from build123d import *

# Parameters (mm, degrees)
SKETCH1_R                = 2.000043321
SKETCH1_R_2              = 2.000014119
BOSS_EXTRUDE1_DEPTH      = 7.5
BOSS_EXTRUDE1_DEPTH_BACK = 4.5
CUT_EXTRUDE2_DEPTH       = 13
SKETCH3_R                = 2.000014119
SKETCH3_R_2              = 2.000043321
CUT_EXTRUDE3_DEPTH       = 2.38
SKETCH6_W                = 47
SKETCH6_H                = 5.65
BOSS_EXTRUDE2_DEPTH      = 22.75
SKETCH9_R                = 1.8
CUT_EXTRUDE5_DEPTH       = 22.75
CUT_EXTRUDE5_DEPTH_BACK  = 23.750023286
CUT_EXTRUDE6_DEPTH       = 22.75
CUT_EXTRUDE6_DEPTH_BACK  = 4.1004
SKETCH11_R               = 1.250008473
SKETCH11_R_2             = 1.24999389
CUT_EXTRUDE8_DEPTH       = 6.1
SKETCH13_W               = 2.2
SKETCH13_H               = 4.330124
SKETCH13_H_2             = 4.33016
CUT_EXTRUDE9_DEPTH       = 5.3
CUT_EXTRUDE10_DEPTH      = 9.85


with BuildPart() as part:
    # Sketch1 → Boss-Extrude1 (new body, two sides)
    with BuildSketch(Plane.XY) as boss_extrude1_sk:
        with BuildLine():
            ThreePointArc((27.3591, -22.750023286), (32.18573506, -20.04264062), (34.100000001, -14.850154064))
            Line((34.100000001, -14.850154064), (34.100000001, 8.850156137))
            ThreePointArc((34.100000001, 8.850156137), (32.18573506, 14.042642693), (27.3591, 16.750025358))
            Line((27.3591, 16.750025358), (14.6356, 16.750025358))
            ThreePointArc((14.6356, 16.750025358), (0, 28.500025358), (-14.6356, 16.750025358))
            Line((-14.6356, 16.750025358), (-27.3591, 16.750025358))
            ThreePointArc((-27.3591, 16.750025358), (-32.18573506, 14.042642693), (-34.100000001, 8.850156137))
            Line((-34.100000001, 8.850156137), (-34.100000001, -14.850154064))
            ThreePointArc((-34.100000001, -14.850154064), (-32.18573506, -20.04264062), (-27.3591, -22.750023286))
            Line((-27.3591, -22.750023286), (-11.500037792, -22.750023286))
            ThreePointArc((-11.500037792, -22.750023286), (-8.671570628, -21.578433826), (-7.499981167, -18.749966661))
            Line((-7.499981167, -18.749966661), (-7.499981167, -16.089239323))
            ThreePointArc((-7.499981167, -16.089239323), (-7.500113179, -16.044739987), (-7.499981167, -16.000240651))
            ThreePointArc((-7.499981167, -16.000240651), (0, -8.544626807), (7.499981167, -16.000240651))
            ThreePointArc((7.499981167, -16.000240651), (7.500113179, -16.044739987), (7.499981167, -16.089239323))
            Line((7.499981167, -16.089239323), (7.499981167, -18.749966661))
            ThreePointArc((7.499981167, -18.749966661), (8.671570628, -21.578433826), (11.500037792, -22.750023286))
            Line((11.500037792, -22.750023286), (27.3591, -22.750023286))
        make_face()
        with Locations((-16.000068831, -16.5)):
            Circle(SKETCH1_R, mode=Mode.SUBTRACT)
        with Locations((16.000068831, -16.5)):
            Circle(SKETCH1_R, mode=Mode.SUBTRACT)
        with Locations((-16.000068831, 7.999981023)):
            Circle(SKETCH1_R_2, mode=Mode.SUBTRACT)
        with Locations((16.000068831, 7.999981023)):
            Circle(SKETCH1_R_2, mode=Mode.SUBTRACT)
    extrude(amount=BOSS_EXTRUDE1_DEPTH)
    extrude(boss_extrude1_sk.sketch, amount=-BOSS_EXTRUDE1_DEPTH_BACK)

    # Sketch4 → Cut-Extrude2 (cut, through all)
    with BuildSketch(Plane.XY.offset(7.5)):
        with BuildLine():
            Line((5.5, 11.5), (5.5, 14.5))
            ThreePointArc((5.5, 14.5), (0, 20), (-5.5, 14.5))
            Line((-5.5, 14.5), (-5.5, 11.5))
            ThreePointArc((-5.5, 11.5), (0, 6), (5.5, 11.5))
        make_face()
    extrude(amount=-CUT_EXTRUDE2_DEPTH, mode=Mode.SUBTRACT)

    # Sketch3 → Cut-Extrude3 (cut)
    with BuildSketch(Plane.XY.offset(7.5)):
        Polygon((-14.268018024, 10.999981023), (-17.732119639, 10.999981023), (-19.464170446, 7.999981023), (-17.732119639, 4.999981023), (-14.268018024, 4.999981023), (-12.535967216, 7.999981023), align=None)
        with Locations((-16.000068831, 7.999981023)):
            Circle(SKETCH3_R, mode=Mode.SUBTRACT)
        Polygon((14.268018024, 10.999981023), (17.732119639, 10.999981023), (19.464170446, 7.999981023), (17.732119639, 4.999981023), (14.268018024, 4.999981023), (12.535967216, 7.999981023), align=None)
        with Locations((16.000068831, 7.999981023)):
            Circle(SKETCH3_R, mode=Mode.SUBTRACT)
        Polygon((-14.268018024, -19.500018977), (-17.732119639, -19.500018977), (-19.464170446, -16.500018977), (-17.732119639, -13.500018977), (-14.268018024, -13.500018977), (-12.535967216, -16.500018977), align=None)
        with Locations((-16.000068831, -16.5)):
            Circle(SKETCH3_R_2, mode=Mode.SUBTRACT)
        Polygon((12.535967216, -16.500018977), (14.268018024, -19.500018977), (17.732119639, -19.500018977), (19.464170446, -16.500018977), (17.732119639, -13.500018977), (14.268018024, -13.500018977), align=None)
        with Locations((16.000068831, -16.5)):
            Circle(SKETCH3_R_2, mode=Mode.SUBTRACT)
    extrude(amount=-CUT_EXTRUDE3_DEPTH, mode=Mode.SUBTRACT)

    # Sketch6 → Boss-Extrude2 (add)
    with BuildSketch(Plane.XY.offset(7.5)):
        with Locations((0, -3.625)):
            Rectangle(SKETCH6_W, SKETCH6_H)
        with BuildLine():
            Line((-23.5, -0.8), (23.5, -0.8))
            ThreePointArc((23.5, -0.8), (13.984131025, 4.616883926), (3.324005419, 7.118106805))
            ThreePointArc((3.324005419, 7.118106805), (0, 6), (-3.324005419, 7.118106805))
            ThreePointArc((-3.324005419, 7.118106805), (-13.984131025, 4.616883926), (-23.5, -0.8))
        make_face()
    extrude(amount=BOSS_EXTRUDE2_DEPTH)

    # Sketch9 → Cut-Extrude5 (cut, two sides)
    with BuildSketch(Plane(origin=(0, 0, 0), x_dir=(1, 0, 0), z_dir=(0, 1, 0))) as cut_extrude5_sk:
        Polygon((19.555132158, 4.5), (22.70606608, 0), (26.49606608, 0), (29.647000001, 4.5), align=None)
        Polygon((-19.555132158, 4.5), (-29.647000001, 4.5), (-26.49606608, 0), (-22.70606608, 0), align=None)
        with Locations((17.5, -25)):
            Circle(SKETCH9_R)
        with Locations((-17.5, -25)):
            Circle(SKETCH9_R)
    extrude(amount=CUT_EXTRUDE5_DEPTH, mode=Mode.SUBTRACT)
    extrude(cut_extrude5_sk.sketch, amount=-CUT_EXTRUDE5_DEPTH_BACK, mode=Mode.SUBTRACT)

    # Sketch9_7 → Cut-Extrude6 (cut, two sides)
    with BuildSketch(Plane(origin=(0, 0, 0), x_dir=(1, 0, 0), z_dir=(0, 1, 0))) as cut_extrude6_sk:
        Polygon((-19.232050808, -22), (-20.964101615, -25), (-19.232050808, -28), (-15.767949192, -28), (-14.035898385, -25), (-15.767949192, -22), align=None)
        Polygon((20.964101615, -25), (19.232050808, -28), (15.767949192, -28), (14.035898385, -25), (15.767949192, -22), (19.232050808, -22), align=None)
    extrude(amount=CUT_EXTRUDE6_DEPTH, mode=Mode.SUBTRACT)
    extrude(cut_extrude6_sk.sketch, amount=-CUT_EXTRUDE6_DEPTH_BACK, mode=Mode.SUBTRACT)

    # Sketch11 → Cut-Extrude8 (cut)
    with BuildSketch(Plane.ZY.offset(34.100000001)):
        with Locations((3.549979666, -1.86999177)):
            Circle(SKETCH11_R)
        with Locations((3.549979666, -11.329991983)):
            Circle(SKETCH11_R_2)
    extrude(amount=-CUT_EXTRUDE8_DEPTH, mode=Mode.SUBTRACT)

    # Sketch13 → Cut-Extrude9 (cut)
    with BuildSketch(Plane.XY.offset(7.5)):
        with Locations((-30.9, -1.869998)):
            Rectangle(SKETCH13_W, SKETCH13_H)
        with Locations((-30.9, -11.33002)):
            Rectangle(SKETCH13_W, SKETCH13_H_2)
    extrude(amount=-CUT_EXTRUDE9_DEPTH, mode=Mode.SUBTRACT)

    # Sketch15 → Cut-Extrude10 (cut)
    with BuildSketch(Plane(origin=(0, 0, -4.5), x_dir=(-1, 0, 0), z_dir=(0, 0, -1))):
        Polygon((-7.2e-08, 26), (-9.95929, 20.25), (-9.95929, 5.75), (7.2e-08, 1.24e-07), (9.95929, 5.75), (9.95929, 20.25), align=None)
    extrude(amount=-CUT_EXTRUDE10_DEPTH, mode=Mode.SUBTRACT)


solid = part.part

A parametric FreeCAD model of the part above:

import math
import FreeCAD as App
import Part
import Sketcher
Q = App.Units.Quantity


def add_polygon(sketch, points):
    """Adds a closed chain of lines whose ends are joined by coincident constraints."""
    first, n = sketch.GeometryCount, len(points)
    for a, b in zip(points, points[1:] + points[:1]):
        sketch.addGeometry(Part.LineSegment(App.Vector(*a, 0), App.Vector(*b, 0)), False)
    for i in range(n):
        sketch.addConstraint(Sketcher.Constraint("Coincident", first + i, 2, first + (i + 1) % n, 1))

doc = App.newDocument("Part")
body = doc.addObject("PartDesign::Body", "Body")

# Sketch on XY plane
sketch1 = doc.addObject("Sketcher::SketchObject", "Sketch")
body.addObject(sketch1)
sketch1.AttachmentSupport = (doc.XY_Plane, [""])
sketch1.MapMode = "FlatFace"
sketch1.addGeometry(Part.ArcOfCircle(Part.Circle(App.Vector(26.1, -14.85, 0), App.Vector(0, 0, 1), 8), math.radians(-81), math.radians(0)), False)
sketch1.addGeometry(Part.LineSegment(App.Vector(34.1, -14.85, 0), App.Vector(34.1, 8.85, 0)), False)
sketch1.addGeometry(Part.ArcOfCircle(Part.Circle(App.Vector(26.1, 8.85, 0), App.Vector(0, 0, 1), 8), math.radians(0), math.radians(81)), False)
sketch1.addGeometry(Part.LineSegment(App.Vector(27.36, 16.75, 0), App.Vector(14.64, 16.75, 0)), False)
sketch1.addGeometry(Part.ArcOfCircle(Part.Circle(App.Vector(0, 13.51, 0), App.Vector(0, 0, 1), 14.99), math.radians(12), math.radians(168)), False)
sketch1.addGeometry(Part.LineSegment(App.Vector(-14.64, 16.75, 0), App.Vector(-27.36, 16.75, 0)), False)
sketch1.addGeometry(Part.ArcOfCircle(Part.Circle(App.Vector(-26.1, 8.85, 0), App.Vector(0, 0, 1), 8), math.radians(99), math.radians(180)), False)
sketch1.addGeometry(Part.LineSegment(App.Vector(-34.1, 8.85, 0), App.Vector(-34.1, -14.85, 0)), False)
sketch1.addGeometry(Part.ArcOfCircle(Part.Circle(App.Vector(-26.1, -14.85, 0), App.Vector(0, 0, 1), 8), math.radians(-180), math.radians(-99)), False)
sketch1.addGeometry(Part.LineSegment(App.Vector(-27.36, -22.75, 0), App.Vector(-11.5, -22.75, 0)), False)
sketch1.addGeometry(Part.ArcOfCircle(Part.Circle(App.Vector(-11.5, -18.75, 0), App.Vector(0, 0, 1), 4), math.radians(-90), math.radians(0)), False)
sketch1.addGeometry(Part.LineSegment(App.Vector(-7.5, -18.75, 0), App.Vector(-7.5, -16.09, 0)), False)
sketch1.addGeometry(Part.ArcOfCircle(Part.Circle(App.Vector(0, -16.04, 0), App.Vector(0, 0, 1), 7.5), math.radians(179.66), math.radians(180.34)), False)
sketch1.addGeometry(Part.ArcOfCircle(Part.Circle(App.Vector(0, -16.04, 0), App.Vector(0, 0, 1), 7.5), math.radians(0), math.radians(180)), False)
sketch1.addGeometry(Part.ArcOfCircle(Part.Circle(App.Vector(0, -16.04, 0), App.Vector(0, 0, 1), 7.5), math.radians(-0.34), math.radians(0.34)), False)
sketch1.addGeometry(Part.LineSegment(App.Vector(7.5, -16.09, 0), App.Vector(7.5, -18.75, 0)), False)
sketch1.addGeometry(Part.ArcOfCircle(Part.Circle(App.Vector(11.5, -18.75, 0), App.Vector(0, 0, 1), 4), math.radians(-180), math.radians(-90)), False)
sketch1.addGeometry(Part.LineSegment(App.Vector(11.5, -22.75, 0), App.Vector(27.36, -22.75, 0)), False)
sketch1.addGeometry(Part.Circle(App.Vector(-16, -16.5, 0), App.Vector(0, 0, 1), 2), False)
sketch1.addGeometry(Part.Circle(App.Vector(16, -16.5, 0), App.Vector(0, 0, 1), 2), False)
sketch1.addGeometry(Part.Circle(App.Vector(-16, 8, 0), App.Vector(0, 0, 1), 2), False)
sketch1.addGeometry(Part.Circle(App.Vector(16, 8, 0), App.Vector(0, 0, 1), 2), False)
sketch1.addConstraint(Sketcher.Constraint("Tangent", 0, 2, 1, 1))
sketch1.addConstraint(Sketcher.Constraint("Tangent", 1, 2, 2, 1))
sketch1.addConstraint(Sketcher.Constraint("Coincident", 2, 2, 3, 1))
sketch1.addConstraint(Sketcher.Constraint("Coincident", 3, 2, 4, 1))
sketch1.addConstraint(Sketcher.Constraint("Coincident", 4, 2, 5, 1))
sketch1.addConstraint(Sketcher.Constraint("Coincident", 5, 2, 6, 1))
sketch1.addConstraint(Sketcher.Constraint("Tangent", 6, 2, 7, 1))
sketch1.addConstraint(Sketcher.Constraint("Tangent", 7, 2, 8, 1))
sketch1.addConstraint(Sketcher.Constraint("Coincident", 8, 2, 9, 1))
sketch1.addConstraint(Sketcher.Constraint("Tangent", 9, 2, 10, 1))
sketch1.addConstraint(Sketcher.Constraint("Tangent", 10, 2, 11, 1))
sketch1.addConstraint(Sketcher.Constraint("Coincident", 11, 2, 12, 2))
sketch1.addConstraint(Sketcher.Constraint("Tangent", 12, 1, 13, 2))
sketch1.addConstraint(Sketcher.Constraint("Tangent", 13, 1, 14, 2))
sketch1.addConstraint(Sketcher.Constraint("Coincident", 14, 1, 15, 1))
sketch1.addConstraint(Sketcher.Constraint("Tangent", 15, 2, 16, 1))
sketch1.addConstraint(Sketcher.Constraint("Tangent", 16, 2, 17, 1))
sketch1.addConstraint(Sketcher.Constraint("Coincident", 17, 2, 0, 1))
sketch1.addConstraint(Sketcher.Constraint("Vertical", 1))
sketch1.addConstraint(Sketcher.Constraint("Horizontal", 3))
sketch1.addConstraint(Sketcher.Constraint("Horizontal", 5))
sketch1.addConstraint(Sketcher.Constraint("Vertical", 7))
sketch1.addConstraint(Sketcher.Constraint("Horizontal", 9))
sketch1.addConstraint(Sketcher.Constraint("Vertical", 11))
sketch1.addConstraint(Sketcher.Constraint("Vertical", 15))
sketch1.addConstraint(Sketcher.Constraint("Horizontal", 17))
sketch1.addConstraint(Sketcher.Constraint("Equal", 0, 2))
sketch1.addConstraint(Sketcher.Constraint("Equal", 2, 6))
sketch1.addConstraint(Sketcher.Constraint("Equal", 6, 8))
sketch1.addConstraint(Sketcher.Constraint("Equal", 12, 14))
sketch1.addConstraint(Sketcher.Constraint("Equal", 10, 16))
sketch1.addConstraint(Sketcher.Constraint("Equal", 18, 19))
sketch1.addConstraint(Sketcher.Constraint("Equal", 20, 21))
sketch1.addConstraint(Sketcher.Constraint("Symmetric", 2, 3, 6, 3, -2))
sketch1.addConstraint(Sketcher.Constraint("Symmetric", 10, 3, 16, 3, -2))
sketch1.addConstraint(Sketcher.Constraint("Symmetric", 18, 3, 19, 3, -2))
sketch1.addConstraint(Sketcher.Constraint("Symmetric", 20, 3, 21, 3, -2))
sketch1.addConstraint(Sketcher.Constraint("Symmetric", 3, 2, 4, 2, -2))
sketch1.addConstraint(Sketcher.Constraint("Symmetric", 12, 1, 13, 1, -2))
sketch1.addConstraint(Sketcher.Constraint("Horizontal", 0, 3, 8, 3))
sketch1.addConstraint(Sketcher.Constraint("Vertical", 18, 3, 20, 3))
sketch1.addConstraint(Sketcher.Constraint("Vertical", 5, 2, 8, 2))
sketch1.addConstraint(Sketcher.Constraint("Vertical", 11, 2, 12, 1))
sketch1.addConstraint(Sketcher.Constraint("DistanceY", 18, 3, -1, 1, Q("16.5 mm")))
sketch1.addConstraint(Sketcher.Constraint("DistanceX", -1, 1, 0, 2, Q("34.1 mm")))
sketch1.addConstraint(Sketcher.Constraint("Radius", 0, Q("7.999501 mm")))
sketch1.addConstraint(Sketcher.Constraint("Diameter", 20, Q("4.000028 mm")))
sketch1.addConstraint(Sketcher.Constraint("Diameter", 18, Q("4.000087 mm")))
sketch1.addConstraint(Sketcher.Constraint("DistanceX", 3, 2, 3, 1, Q("12.7235 mm")))
sketch1.addConstraint(Sketcher.Constraint("Radius", 4, Q("14.989927 mm")))
sketch1.addConstraint(Sketcher.Constraint("Radius", 10, Q("4.000057 mm")))
sketch1.addConstraint(Sketcher.Constraint("Radius", 12, Q("7.500107 mm")))
sketch1.addConstraint(Sketcher.Constraint("Radius", 13, Q("7.500113 mm")))
sketch1.addConstraint(Sketcher.Constraint("DistanceY", 11, 2, 12, 1, Q("0.088999 mm")))
sketch1.addConstraint(Sketcher.Constraint("DistanceY", 1, 1, 1, 2, Q("23.70031 mm")))
sketch1.addConstraint(Sketcher.Constraint("DistanceY", -1, 1, 4, 3, Q("13.510098 mm")))
sketch1.addConstraint(Sketcher.Constraint("DistanceX", -1, 1, 2, 2, Q("27.3591 mm")))
sketch1.addConstraint(Sketcher.Constraint("DistanceY", 11, 1, 11, 2, Q("2.660727 mm")))
sketch1.addConstraint(Sketcher.Constraint("DistanceX", 18, 3, -1, 1, Q("16.000069 mm")))
sketch1.addConstraint(Sketcher.Constraint("DistanceY", -1, 1, 20, 3, Q("7.999981 mm")))
pad1 = doc.addObject("PartDesign::Pad", "Pad")
body.addObject(pad1)
pad1.Profile = sketch1
pad1.Type = "TwoLengths"
pad1.Length = 7.5
pad1.Length2 = 4.5

# Sketch on XY plane
sketch2 = doc.addObject("Sketcher::SketchObject", "Sketch001")
body.addObject(sketch2)
sketch2.AttachmentSupport = (doc.XY_Plane, [""])
sketch2.MapMode = "FlatFace"
sketch2.AttachmentOffset = App.Placement(App.Vector(0, 0, 7.5), App.Rotation())
sketch2.addGeometry(Part.LineSegment(App.Vector(5.5, 11.5, 0), App.Vector(5.5, 14.5, 0)), False)
sketch2.addGeometry(Part.ArcOfCircle(Part.Circle(App.Vector(0, 14.5, 0), App.Vector(0, 0, 1), 5.5), math.radians(0), math.radians(180)), False)
sketch2.addGeometry(Part.LineSegment(App.Vector(-5.5, 14.5, 0), App.Vector(-5.5, 11.5, 0)), False)
sketch2.addGeometry(Part.ArcOfCircle(Part.Circle(App.Vector(0, 11.5, 0), App.Vector(0, 0, 1), 5.5), math.radians(180), math.radians(360)), False)
sketch2.addConstraint(Sketcher.Constraint("Tangent", 0, 2, 1, 1))
sketch2.addConstraint(Sketcher.Constraint("Tangent", 1, 2, 2, 1))
sketch2.addConstraint(Sketcher.Constraint("Tangent", 2, 2, 3, 1))
sketch2.addConstraint(Sketcher.Constraint("Tangent", 3, 2, 0, 1))
sketch2.addConstraint(Sketcher.Constraint("Vertical", 0))
sketch2.addConstraint(Sketcher.Constraint("Vertical", 2))
sketch2.addConstraint(Sketcher.Constraint("PointOnObject", 1, 3, -2))
sketch2.addConstraint(Sketcher.Constraint("Radius", 1, Q("5.5 mm")))
sketch2.addConstraint(Sketcher.Constraint("DistanceY", 0, 1, 0, 2, Q("3 mm")))
sketch2.addConstraint(Sketcher.Constraint("DistanceY", -1, 1, 1, 3, Q("14.5 mm")))
pocket1 = doc.addObject("PartDesign::Pocket", "Pocket")
body.addObject(pocket1)
pocket1.Profile = sketch2
pocket1.Type = "ThroughAll"

# Sketch on XY plane
sketch3 = doc.addObject("Sketcher::SketchObject", "Sketch002")
body.addObject(sketch3)
sketch3.AttachmentSupport = (doc.XY_Plane, [""])
sketch3.MapMode = "FlatFace"
sketch3.AttachmentOffset = App.Placement(App.Vector(0, 0, 7.5), App.Rotation())
add_polygon(sketch3, [(-14.3, 11), (-17.7, 11), (-19.5, 8), (-17.7, 5), (-14.3, 5), (-12.5, 8)])  # lines 0-5
sketch3.addGeometry(Part.Circle(App.Vector(-16, 8, 0), App.Vector(0, 0, 1), 2), False)  # 6
add_polygon(sketch3, [(17.7, 11), (14.3, 11), (12.5, 8), (14.3, 5), (17.7, 5), (19.5, 8)])  # lines 7-12
sketch3.addGeometry(Part.Circle(App.Vector(16, 8, 0), App.Vector(0, 0, 1), 2), False)  # 13
add_polygon(sketch3, [(-17.7, -19.5), (-14.3, -19.5), (-12.5, -16.5), (-14.3, -13.5), (-17.7, -13.5), (-19.5, -16.5)])  # lines 14-19
sketch3.addGeometry(Part.Circle(App.Vector(-16, -16.5, 0), App.Vector(0, 0, 1), 2), False)  # 20
add_polygon(sketch3, [(12.5, -16.5), (14.3, -19.5), (17.7, -19.5), (19.5, -16.5), (17.7, -13.5), (14.3, -13.5)])  # lines 21-26
sketch3.addGeometry(Part.Circle(App.Vector(16, -16.5, 0), App.Vector(0, 0, 1), 2), False)  # 27
sketch3.addConstraint(Sketcher.Constraint("Horizontal", 0))
sketch3.addConstraint(Sketcher.Constraint("Horizontal", 3))
sketch3.addConstraint(Sketcher.Constraint("Horizontal", 7))
sketch3.addConstraint(Sketcher.Constraint("Horizontal", 10))
sketch3.addConstraint(Sketcher.Constraint("Horizontal", 14))
sketch3.addConstraint(Sketcher.Constraint("Horizontal", 17))
sketch3.addConstraint(Sketcher.Constraint("Horizontal", 22))
sketch3.addConstraint(Sketcher.Constraint("Horizontal", 25))
sketch3.addConstraint(Sketcher.Constraint("Equal", 6, 13))
sketch3.addConstraint(Sketcher.Constraint("Equal", 20, 27))
sketch3.addConstraint(Sketcher.Constraint("Symmetric", 6, 3, 13, 3, -2))
sketch3.addConstraint(Sketcher.Constraint("Symmetric", 20, 3, 27, 3, -2))
sketch3.addConstraint(Sketcher.Constraint("Symmetric", 5, 2, 7, 2, -2))
sketch3.addConstraint(Sketcher.Constraint("Symmetric", 4, 2, 8, 2, -2))
sketch3.addConstraint(Sketcher.Constraint("Symmetric", 3, 2, 9, 2, -2))
sketch3.addConstraint(Sketcher.Constraint("Symmetric", 1, 2, 11, 2, -2))
sketch3.addConstraint(Sketcher.Constraint("Symmetric", 14, 2, 21, 2, -2))
sketch3.addConstraint(Sketcher.Constraint("Symmetric", 18, 2, 23, 2, -2))
sketch3.addConstraint(Sketcher.Constraint("Symmetric", 17, 2, 24, 2, -2))
sketch3.addConstraint(Sketcher.Constraint("Symmetric", 15, 2, 26, 2, -2))
sketch3.addConstraint(Sketcher.Constraint("Parallel", 1, 4))
sketch3.addConstraint(Sketcher.Constraint("Parallel", 2, 5))
sketch3.addConstraint(Sketcher.Constraint("Parallel", 4, 8))
sketch3.addConstraint(Sketcher.Constraint("Parallel", 8, 11))
sketch3.addConstraint(Sketcher.Constraint("Parallel", 9, 12))
sketch3.addConstraint(Sketcher.Constraint("Parallel", 11, 15))
sketch3.addConstraint(Sketcher.Constraint("Parallel", 12, 16))
sketch3.addConstraint(Sketcher.Constraint("Parallel", 15, 18))
sketch3.addConstraint(Sketcher.Constraint("Parallel", 16, 19))
sketch3.addConstraint(Sketcher.Constraint("Parallel", 18, 23))
sketch3.addConstraint(Sketcher.Constraint("Parallel", 23, 26))
sketch3.addConstraint(Sketcher.Constraint("Horizontal", 13, 3, 1, 2))
sketch3.addConstraint(Sketcher.Constraint("Horizontal", 1, 2, 4, 2))
sketch3.addConstraint(Sketcher.Constraint("Horizontal", 15, 2, 18, 2))
sketch3.addConstraint(Sketcher.Constraint("Vertical", 6, 3, 20, 3))
sketch3.addConstraint(Sketcher.Constraint("Vertical", 0, 2, 2, 2))
sketch3.addConstraint(Sketcher.Constraint("Vertical", 5, 2, 14, 2))
sketch3.addConstraint(Sketcher.Constraint("Vertical", 4, 2, 15, 2))
sketch3.addConstraint(Sketcher.Constraint("Vertical", 14, 2, 16, 2))
sketch3.addConstraint(Sketcher.Constraint("Vertical", 2, 2, 17, 2))
sketch3.addConstraint(Sketcher.Constraint("Angle", 1, Q("-120 deg")))
sketch3.addConstraint(Sketcher.Constraint("DistanceY", 6, 3, 0, 2, Q("3 mm")))
sketch3.addConstraint(Sketcher.Constraint("DistanceY", 20, 3, -1, 1, Q("16.5 mm")))
sketch3.addConstraint(Sketcher.Constraint("DistanceY", 14, 2, 3, 2, Q("24.5 mm")))
sketch3.addConstraint(Sketcher.Constraint("Diameter", 6, Q("4.000028 mm")))
sketch3.addConstraint(Sketcher.Constraint("Diameter", 20, Q("4.000087 mm")))
sketch3.addConstraint(Sketcher.Constraint("DistanceX", 0, 2, 0, 1, Q("3.464102 mm")))
sketch3.addConstraint(Sketcher.Constraint("DistanceX", 1, 2, 6, 3, Q("3.464102 mm")))
sketch3.addConstraint(Sketcher.Constraint("DistanceX", 6, 3, -1, 1, Q("16.000069 mm")))
sketch3.addConstraint(Sketcher.Constraint("DistanceY", -1, 1, 6, 3, Q("7.999981 mm")))
pocket2 = doc.addObject("PartDesign::Pocket", "Pocket001")
body.addObject(pocket2)
pocket2.Profile = sketch3
pocket2.Length = 2.38

# Sketch on XY plane
sketch4 = doc.addObject("Sketcher::SketchObject", "Sketch003")
body.addObject(sketch4)
sketch4.AttachmentSupport = (doc.XY_Plane, [""])
sketch4.MapMode = "FlatFace"
sketch4.AttachmentOffset = App.Placement(App.Vector(0, 0, 7.5), App.Rotation())
sketch4.addGeometry(Part.LineSegment(App.Vector(-24, -1, 0), App.Vector(-24, -6, 0)), False)
sketch4.addGeometry(Part.LineSegment(App.Vector(-24, -6, 0), App.Vector(24, -6, 0)), False)
sketch4.addGeometry(Part.LineSegment(App.Vector(24, -6, 0), App.Vector(24, -1, 0)), False)
sketch4.addGeometry(Part.ArcOfCircle(Part.Circle(App.Vector(0, -31, 0), App.Vector(0, 0, 1), 38), math.radians(52), math.radians(85)), False)
sketch4.addGeometry(Part.ArcOfCircle(Part.Circle(App.Vector(0, 11, 0), App.Vector(0, 0, 1), 5), math.radians(-127), math.radians(-53)), False)
sketch4.addGeometry(Part.ArcOfCircle(Part.Circle(App.Vector(0, -31, 0), App.Vector(0, 0, 1), 38), math.radians(95), math.radians(128)), False)
sketch4.addConstraint(Sketcher.Constraint("Coincident", 0, 2, 1, 1))
sketch4.addConstraint(Sketcher.Constraint("Coincident", 1, 2, 2, 1))
sketch4.addConstraint(Sketcher.Constraint("Coincident", 2, 2, 3, 1))
sketch4.addConstraint(Sketcher.Constraint("Coincident", 3, 2, 4, 2))
sketch4.addConstraint(Sketcher.Constraint("Coincident", 4, 1, 5, 1))
sketch4.addConstraint(Sketcher.Constraint("Coincident", 5, 2, 0, 1))
sketch4.addConstraint(Sketcher.Constraint("Vertical", 0))
sketch4.addConstraint(Sketcher.Constraint("Horizontal", 1))
sketch4.addConstraint(Sketcher.Constraint("Vertical", 2))
sketch4.addConstraint(Sketcher.Constraint("Coincident", 5, 3, 3, 3))
sketch4.addConstraint(Sketcher.Constraint("Equal", 3, 5))
sketch4.addConstraint(Sketcher.Constraint("Symmetric", 3, 2, 4, 1, -2))
sketch4.addConstraint(Sketcher.Constraint("Horizontal", 2, 2, 5, 2))
sketch4.addConstraint(Sketcher.Constraint("Radius", 4, Q("5.5 mm")))
sketch4.addConstraint(Sketcher.Constraint("DistanceX", 1, 1, 1, 2, Q("47 mm")))
sketch4.addConstraint(Sketcher.Constraint("DistanceY", 0, 2, 0, 1, Q("5.65 mm")))
sketch4.addConstraint(Sketcher.Constraint("DistanceY", -1, 1, 4, 3, Q("11.5 mm")))
sketch4.addConstraint(Sketcher.Constraint("DistanceY", 2, 2, -1, 1, Q("0.8 mm")))
sketch4.addConstraint(Sketcher.Constraint("Radius", 3, Q("38.278549 mm")))
pad2 = doc.addObject("PartDesign::Pad", "Pad001")
body.addObject(pad2)
pad2.Profile = sketch4
pad2.Length = 22.75

# Sketch on XZ plane
sketch5 = doc.addObject("Sketcher::SketchObject", "Sketch004")
body.addObject(sketch5)
sketch5.AttachmentSupport = (doc.XZ_Plane, [""])
sketch5.MapMode = "FlatFace"
add_polygon(sketch5, [(19.6, -4.5), (22.7, 0), (26.5, 0), (29.6, -4.5)])  # lines 0-3
add_polygon(sketch5, [(-19.6, -4.5), (-29.6, -4.5), (-26.5, 0), (-22.7, 0)])  # lines 4-7
sketch5.addGeometry(Part.Circle(App.Vector(17.5, 25, 0), App.Vector(0, 0, 1), 1.8), False)  # 8
sketch5.addGeometry(Part.Circle(App.Vector(-17.5, 25, 0), App.Vector(0, 0, 1), 1.8), False)  # 9
sketch5.addConstraint(Sketcher.Constraint("Horizontal", 1))
sketch5.addConstraint(Sketcher.Constraint("Horizontal", 3))
sketch5.addConstraint(Sketcher.Constraint("Horizontal", 4))
sketch5.addConstraint(Sketcher.Constraint("Horizontal", 6))
sketch5.addConstraint(Sketcher.Constraint("Equal", 8, 9))
sketch5.addConstraint(Sketcher.Constraint("Symmetric", 1, 2, 5, 2, -1, 1))
sketch5.addConstraint(Sketcher.Constraint("Symmetric", 8, 3, 9, 3, -2))
sketch5.addConstraint(Sketcher.Constraint("Symmetric", 2, 2, 4, 2, -2))
sketch5.addConstraint(Sketcher.Constraint("Symmetric", 0, 2, 6, 2, -2))
sketch5.addConstraint(Sketcher.Constraint("Parallel", 0, 5))
sketch5.addConstraint(Sketcher.Constraint("Parallel", 2, 7))
sketch5.addConstraint(Sketcher.Constraint("Diameter", 8, Q("3.6 mm")))
sketch5.addConstraint(Sketcher.Constraint("Angle", 0, Q("55 deg")))
sketch5.addConstraint(Sketcher.Constraint("DistanceY", -1, 1, 8, 3, Q("25 mm")))
sketch5.addConstraint(Sketcher.Constraint("DistanceX", 9, 3, 8, 3, Q("35 mm")))
sketch5.addConstraint(Sketcher.Constraint("DistanceX", 1, 1, 1, 2, Q("3.79 mm")))
sketch5.addConstraint(Sketcher.Constraint("DistanceY", 2, 2, -1, 1, Q("4.5 mm")))
sketch5.addConstraint(Sketcher.Constraint("DistanceX", -1, 1, 2, 2, Q("29.647 mm")))
pocket3 = doc.addObject("PartDesign::Pocket", "Pocket002")
body.addObject(pocket3)
pocket3.Profile = sketch5
pocket3.Type = "ThroughAll"
pocket3.Midplane = True

# Sketch on XZ plane
sketch6 = doc.addObject("Sketcher::SketchObject", "Sketch005")
body.addObject(sketch6)
sketch6.AttachmentSupport = (doc.XZ_Plane, [""])
sketch6.MapMode = "FlatFace"
add_polygon(sketch6, [(-19.2, 22), (-21, 25), (-19.2, 28), (-15.8, 28), (-14, 25), (-15.8, 22)])  # lines 0-5
add_polygon(sketch6, [(19.2, 28), (21, 25), (19.2, 22), (15.8, 22), (14, 25), (15.8, 28)])  # lines 6-11
sketch6.addConstraint(Sketcher.Constraint("Horizontal", 2))
sketch6.addConstraint(Sketcher.Constraint("Horizontal", 5))
sketch6.addConstraint(Sketcher.Constraint("Horizontal", 8))
sketch6.addConstraint(Sketcher.Constraint("Horizontal", 11))
sketch6.addConstraint(Sketcher.Constraint("Symmetric", 0, 2, 6, 2, -2))
sketch6.addConstraint(Sketcher.Constraint("Symmetric", 5, 2, 7, 2, -2))
sketch6.addConstraint(Sketcher.Constraint("Symmetric", 3, 2, 9, 2, -2))
sketch6.addConstraint(Sketcher.Constraint("Symmetric", 2, 2, 10, 2, -2))
sketch6.addConstraint(Sketcher.Constraint("Parallel", 0, 3))
sketch6.addConstraint(Sketcher.Constraint("Parallel", 1, 4))
sketch6.addConstraint(Sketcher.Constraint("Parallel", 3, 6))
sketch6.addConstraint(Sketcher.Constraint("Parallel", 4, 7))
sketch6.addConstraint(Sketcher.Constraint("Parallel", 6, 9))
sketch6.addConstraint(Sketcher.Constraint("Horizontal", 0, 2, 3, 2))
sketch6.addConstraint(Sketcher.Constraint("Vertical", 2, 2, 4, 2))
sketch6.addConstraint(Sketcher.Constraint("Angle", 0, Q("120 deg")))
sketch6.addConstraint(Sketcher.Constraint("DistanceY", -1, 1, 0, 2, Q("25 mm")))
sketch6.addConstraint(Sketcher.Constraint("DistanceY", -1, 1, 1, 2, Q("28 mm")))
sketch6.addConstraint(Sketcher.Constraint("DistanceX", 3, 2, 6, 2, Q("35 mm")))
sketch6.addConstraint(Sketcher.Constraint("DistanceX", 2, 1, 2, 2, Q("3.464102 mm")))
pocket4 = doc.addObject("PartDesign::Pocket", "Pocket003")
body.addObject(pocket4)
pocket4.Profile = sketch6
pocket4.Type = "TwoLengths"
pocket4.Length = 22.75
pocket4.Length2 = 4.1004

# Sketch on YZ plane
sketch7 = doc.addObject("Sketcher::SketchObject", "Sketch006")
body.addObject(sketch7)
sketch7.AttachmentSupport = (doc.YZ_Plane, [""])
sketch7.MapMode = "FlatFace"
sketch7.AttachmentOffset = App.Placement(App.Vector(0, 0, -34.1), App.Rotation())
sketch7.addGeometry(Part.Circle(App.Vector(-1.9, 3.5, 0), App.Vector(0, 0, 1), 1.3), False)
sketch7.addGeometry(Part.Circle(App.Vector(-11.3, 3.5, 0), App.Vector(0, 0, 1), 1.2), False)
sketch7.addConstraint(Sketcher.Constraint("Horizontal", 0, 3, 1, 3))
sketch7.addConstraint(Sketcher.Constraint("DistanceX", 1, 3, 0, 3, Q("9.46 mm")))
sketch7.addConstraint(Sketcher.Constraint("Diameter", 0, Q("2.500017 mm")))
sketch7.addConstraint(Sketcher.Constraint("Diameter", 1, Q("2.499988 mm")))
sketch7.addConstraint(Sketcher.Constraint("DistanceX", 0, 3, -1, 1, Q("1.869992 mm")))
sketch7.addConstraint(Sketcher.Constraint("DistanceY", -1, 1, 0, 3, Q("3.54998 mm")))
pocket5 = doc.addObject("PartDesign::Pocket", "Pocket004")
body.addObject(pocket5)
pocket5.Profile = sketch7
pocket5.Length = 6.1
pocket5.Reversed = True

# Sketch on XY plane
sketch8 = doc.addObject("Sketcher::SketchObject", "Sketch007")
body.addObject(sketch8)
sketch8.AttachmentSupport = (doc.XY_Plane, [""])
sketch8.MapMode = "FlatFace"
sketch8.AttachmentOffset = App.Placement(App.Vector(0, 0, 7.5), App.Rotation())
add_polygon(sketch8, [(-32, 0.3), (-32, -4), (-29.8, -4), (-29.8, 0.3)])  # lines 0-3
add_polygon(sketch8, [(-32, -9.2), (-32, -13.5), (-29.8, -13.5), (-29.8, -9.2)])  # lines 4-7
sketch8.addConstraint(Sketcher.Constraint("Vertical", 0))
sketch8.addConstraint(Sketcher.Constraint("Horizontal", 1))
sketch8.addConstraint(Sketcher.Constraint("Vertical", 2))
sketch8.addConstraint(Sketcher.Constraint("Horizontal", 3))
sketch8.addConstraint(Sketcher.Constraint("Vertical", 4))
sketch8.addConstraint(Sketcher.Constraint("Horizontal", 5))
sketch8.addConstraint(Sketcher.Constraint("Vertical", 6))
sketch8.addConstraint(Sketcher.Constraint("Horizontal", 7))
sketch8.addConstraint(Sketcher.Constraint("Vertical", 3, 2, 4, 2))
sketch8.addConstraint(Sketcher.Constraint("Vertical", 2, 2, 5, 2))
sketch8.addConstraint(Sketcher.Constraint("DistanceX", 1, 1, 1, 2, Q("2.2 mm")))
sketch8.addConstraint(Sketcher.Constraint("DistanceX", 0, 2, -1, 1, Q("32 mm")))
sketch8.addConstraint(Sketcher.Constraint("DistanceY", 4, 2, 4, 1, Q("4.33016 mm")))
sketch8.addConstraint(Sketcher.Constraint("DistanceY", 4, 2, -1, 1, Q("13.4951 mm")))
sketch8.addConstraint(Sketcher.Constraint("DistanceY", 0, 2, 0, 1, Q("4.330124 mm")))
sketch8.addConstraint(Sketcher.Constraint("DistanceY", 0, 2, -1, 1, Q("4.03506 mm")))
pocket6 = doc.addObject("PartDesign::Pocket", "Pocket005")
body.addObject(pocket6)
pocket6.Profile = sketch8
pocket6.Length = 5.3

# Sketch on XY plane
sketch9 = doc.addObject("Sketcher::SketchObject", "Sketch008")
body.addObject(sketch9)
sketch9.AttachmentSupport = (doc.XY_Plane, [""])
sketch9.MapMode = "FlatFace"
sketch9.AttachmentOffset = App.Placement(App.Vector(0, 0, -4.5), App.Rotation())
add_polygon(sketch9, [(0, 26), (10, 20), (10, 6), (0, 0), (-10, 6), (-10, 20)])  # lines 0-5
sketch9.addConstraint(Sketcher.Constraint("Vertical", 1))
sketch9.addConstraint(Sketcher.Constraint("Vertical", 4))
sketch9.addConstraint(Sketcher.Constraint("Coincident", 2, 2, -1, 1))
sketch9.addConstraint(Sketcher.Constraint("Symmetric", 1, 2, 3, 2, -2))
sketch9.addConstraint(Sketcher.Constraint("PointOnObject", 5, 2, -2))
sketch9.addConstraint(Sketcher.Constraint("Parallel", 0, 3))
sketch9.addConstraint(Sketcher.Constraint("Parallel", 2, 5))
sketch9.addConstraint(Sketcher.Constraint("Angle", 0, Q("-30.000006 deg")))
sketch9.addConstraint(Sketcher.Constraint("DistanceY", 1, 2, 1, 1, Q("14.5 mm")))
sketch9.addConstraint(Sketcher.Constraint("DistanceY", -1, 1, 5, 2, Q("26 mm")))
pocket7 = doc.addObject("PartDesign::Pocket", "Pocket006")
body.addObject(pocket7)
pocket7.Profile = sketch9
pocket7.Length = 9.85
pocket7.Reversed = True

doc.recompute()
